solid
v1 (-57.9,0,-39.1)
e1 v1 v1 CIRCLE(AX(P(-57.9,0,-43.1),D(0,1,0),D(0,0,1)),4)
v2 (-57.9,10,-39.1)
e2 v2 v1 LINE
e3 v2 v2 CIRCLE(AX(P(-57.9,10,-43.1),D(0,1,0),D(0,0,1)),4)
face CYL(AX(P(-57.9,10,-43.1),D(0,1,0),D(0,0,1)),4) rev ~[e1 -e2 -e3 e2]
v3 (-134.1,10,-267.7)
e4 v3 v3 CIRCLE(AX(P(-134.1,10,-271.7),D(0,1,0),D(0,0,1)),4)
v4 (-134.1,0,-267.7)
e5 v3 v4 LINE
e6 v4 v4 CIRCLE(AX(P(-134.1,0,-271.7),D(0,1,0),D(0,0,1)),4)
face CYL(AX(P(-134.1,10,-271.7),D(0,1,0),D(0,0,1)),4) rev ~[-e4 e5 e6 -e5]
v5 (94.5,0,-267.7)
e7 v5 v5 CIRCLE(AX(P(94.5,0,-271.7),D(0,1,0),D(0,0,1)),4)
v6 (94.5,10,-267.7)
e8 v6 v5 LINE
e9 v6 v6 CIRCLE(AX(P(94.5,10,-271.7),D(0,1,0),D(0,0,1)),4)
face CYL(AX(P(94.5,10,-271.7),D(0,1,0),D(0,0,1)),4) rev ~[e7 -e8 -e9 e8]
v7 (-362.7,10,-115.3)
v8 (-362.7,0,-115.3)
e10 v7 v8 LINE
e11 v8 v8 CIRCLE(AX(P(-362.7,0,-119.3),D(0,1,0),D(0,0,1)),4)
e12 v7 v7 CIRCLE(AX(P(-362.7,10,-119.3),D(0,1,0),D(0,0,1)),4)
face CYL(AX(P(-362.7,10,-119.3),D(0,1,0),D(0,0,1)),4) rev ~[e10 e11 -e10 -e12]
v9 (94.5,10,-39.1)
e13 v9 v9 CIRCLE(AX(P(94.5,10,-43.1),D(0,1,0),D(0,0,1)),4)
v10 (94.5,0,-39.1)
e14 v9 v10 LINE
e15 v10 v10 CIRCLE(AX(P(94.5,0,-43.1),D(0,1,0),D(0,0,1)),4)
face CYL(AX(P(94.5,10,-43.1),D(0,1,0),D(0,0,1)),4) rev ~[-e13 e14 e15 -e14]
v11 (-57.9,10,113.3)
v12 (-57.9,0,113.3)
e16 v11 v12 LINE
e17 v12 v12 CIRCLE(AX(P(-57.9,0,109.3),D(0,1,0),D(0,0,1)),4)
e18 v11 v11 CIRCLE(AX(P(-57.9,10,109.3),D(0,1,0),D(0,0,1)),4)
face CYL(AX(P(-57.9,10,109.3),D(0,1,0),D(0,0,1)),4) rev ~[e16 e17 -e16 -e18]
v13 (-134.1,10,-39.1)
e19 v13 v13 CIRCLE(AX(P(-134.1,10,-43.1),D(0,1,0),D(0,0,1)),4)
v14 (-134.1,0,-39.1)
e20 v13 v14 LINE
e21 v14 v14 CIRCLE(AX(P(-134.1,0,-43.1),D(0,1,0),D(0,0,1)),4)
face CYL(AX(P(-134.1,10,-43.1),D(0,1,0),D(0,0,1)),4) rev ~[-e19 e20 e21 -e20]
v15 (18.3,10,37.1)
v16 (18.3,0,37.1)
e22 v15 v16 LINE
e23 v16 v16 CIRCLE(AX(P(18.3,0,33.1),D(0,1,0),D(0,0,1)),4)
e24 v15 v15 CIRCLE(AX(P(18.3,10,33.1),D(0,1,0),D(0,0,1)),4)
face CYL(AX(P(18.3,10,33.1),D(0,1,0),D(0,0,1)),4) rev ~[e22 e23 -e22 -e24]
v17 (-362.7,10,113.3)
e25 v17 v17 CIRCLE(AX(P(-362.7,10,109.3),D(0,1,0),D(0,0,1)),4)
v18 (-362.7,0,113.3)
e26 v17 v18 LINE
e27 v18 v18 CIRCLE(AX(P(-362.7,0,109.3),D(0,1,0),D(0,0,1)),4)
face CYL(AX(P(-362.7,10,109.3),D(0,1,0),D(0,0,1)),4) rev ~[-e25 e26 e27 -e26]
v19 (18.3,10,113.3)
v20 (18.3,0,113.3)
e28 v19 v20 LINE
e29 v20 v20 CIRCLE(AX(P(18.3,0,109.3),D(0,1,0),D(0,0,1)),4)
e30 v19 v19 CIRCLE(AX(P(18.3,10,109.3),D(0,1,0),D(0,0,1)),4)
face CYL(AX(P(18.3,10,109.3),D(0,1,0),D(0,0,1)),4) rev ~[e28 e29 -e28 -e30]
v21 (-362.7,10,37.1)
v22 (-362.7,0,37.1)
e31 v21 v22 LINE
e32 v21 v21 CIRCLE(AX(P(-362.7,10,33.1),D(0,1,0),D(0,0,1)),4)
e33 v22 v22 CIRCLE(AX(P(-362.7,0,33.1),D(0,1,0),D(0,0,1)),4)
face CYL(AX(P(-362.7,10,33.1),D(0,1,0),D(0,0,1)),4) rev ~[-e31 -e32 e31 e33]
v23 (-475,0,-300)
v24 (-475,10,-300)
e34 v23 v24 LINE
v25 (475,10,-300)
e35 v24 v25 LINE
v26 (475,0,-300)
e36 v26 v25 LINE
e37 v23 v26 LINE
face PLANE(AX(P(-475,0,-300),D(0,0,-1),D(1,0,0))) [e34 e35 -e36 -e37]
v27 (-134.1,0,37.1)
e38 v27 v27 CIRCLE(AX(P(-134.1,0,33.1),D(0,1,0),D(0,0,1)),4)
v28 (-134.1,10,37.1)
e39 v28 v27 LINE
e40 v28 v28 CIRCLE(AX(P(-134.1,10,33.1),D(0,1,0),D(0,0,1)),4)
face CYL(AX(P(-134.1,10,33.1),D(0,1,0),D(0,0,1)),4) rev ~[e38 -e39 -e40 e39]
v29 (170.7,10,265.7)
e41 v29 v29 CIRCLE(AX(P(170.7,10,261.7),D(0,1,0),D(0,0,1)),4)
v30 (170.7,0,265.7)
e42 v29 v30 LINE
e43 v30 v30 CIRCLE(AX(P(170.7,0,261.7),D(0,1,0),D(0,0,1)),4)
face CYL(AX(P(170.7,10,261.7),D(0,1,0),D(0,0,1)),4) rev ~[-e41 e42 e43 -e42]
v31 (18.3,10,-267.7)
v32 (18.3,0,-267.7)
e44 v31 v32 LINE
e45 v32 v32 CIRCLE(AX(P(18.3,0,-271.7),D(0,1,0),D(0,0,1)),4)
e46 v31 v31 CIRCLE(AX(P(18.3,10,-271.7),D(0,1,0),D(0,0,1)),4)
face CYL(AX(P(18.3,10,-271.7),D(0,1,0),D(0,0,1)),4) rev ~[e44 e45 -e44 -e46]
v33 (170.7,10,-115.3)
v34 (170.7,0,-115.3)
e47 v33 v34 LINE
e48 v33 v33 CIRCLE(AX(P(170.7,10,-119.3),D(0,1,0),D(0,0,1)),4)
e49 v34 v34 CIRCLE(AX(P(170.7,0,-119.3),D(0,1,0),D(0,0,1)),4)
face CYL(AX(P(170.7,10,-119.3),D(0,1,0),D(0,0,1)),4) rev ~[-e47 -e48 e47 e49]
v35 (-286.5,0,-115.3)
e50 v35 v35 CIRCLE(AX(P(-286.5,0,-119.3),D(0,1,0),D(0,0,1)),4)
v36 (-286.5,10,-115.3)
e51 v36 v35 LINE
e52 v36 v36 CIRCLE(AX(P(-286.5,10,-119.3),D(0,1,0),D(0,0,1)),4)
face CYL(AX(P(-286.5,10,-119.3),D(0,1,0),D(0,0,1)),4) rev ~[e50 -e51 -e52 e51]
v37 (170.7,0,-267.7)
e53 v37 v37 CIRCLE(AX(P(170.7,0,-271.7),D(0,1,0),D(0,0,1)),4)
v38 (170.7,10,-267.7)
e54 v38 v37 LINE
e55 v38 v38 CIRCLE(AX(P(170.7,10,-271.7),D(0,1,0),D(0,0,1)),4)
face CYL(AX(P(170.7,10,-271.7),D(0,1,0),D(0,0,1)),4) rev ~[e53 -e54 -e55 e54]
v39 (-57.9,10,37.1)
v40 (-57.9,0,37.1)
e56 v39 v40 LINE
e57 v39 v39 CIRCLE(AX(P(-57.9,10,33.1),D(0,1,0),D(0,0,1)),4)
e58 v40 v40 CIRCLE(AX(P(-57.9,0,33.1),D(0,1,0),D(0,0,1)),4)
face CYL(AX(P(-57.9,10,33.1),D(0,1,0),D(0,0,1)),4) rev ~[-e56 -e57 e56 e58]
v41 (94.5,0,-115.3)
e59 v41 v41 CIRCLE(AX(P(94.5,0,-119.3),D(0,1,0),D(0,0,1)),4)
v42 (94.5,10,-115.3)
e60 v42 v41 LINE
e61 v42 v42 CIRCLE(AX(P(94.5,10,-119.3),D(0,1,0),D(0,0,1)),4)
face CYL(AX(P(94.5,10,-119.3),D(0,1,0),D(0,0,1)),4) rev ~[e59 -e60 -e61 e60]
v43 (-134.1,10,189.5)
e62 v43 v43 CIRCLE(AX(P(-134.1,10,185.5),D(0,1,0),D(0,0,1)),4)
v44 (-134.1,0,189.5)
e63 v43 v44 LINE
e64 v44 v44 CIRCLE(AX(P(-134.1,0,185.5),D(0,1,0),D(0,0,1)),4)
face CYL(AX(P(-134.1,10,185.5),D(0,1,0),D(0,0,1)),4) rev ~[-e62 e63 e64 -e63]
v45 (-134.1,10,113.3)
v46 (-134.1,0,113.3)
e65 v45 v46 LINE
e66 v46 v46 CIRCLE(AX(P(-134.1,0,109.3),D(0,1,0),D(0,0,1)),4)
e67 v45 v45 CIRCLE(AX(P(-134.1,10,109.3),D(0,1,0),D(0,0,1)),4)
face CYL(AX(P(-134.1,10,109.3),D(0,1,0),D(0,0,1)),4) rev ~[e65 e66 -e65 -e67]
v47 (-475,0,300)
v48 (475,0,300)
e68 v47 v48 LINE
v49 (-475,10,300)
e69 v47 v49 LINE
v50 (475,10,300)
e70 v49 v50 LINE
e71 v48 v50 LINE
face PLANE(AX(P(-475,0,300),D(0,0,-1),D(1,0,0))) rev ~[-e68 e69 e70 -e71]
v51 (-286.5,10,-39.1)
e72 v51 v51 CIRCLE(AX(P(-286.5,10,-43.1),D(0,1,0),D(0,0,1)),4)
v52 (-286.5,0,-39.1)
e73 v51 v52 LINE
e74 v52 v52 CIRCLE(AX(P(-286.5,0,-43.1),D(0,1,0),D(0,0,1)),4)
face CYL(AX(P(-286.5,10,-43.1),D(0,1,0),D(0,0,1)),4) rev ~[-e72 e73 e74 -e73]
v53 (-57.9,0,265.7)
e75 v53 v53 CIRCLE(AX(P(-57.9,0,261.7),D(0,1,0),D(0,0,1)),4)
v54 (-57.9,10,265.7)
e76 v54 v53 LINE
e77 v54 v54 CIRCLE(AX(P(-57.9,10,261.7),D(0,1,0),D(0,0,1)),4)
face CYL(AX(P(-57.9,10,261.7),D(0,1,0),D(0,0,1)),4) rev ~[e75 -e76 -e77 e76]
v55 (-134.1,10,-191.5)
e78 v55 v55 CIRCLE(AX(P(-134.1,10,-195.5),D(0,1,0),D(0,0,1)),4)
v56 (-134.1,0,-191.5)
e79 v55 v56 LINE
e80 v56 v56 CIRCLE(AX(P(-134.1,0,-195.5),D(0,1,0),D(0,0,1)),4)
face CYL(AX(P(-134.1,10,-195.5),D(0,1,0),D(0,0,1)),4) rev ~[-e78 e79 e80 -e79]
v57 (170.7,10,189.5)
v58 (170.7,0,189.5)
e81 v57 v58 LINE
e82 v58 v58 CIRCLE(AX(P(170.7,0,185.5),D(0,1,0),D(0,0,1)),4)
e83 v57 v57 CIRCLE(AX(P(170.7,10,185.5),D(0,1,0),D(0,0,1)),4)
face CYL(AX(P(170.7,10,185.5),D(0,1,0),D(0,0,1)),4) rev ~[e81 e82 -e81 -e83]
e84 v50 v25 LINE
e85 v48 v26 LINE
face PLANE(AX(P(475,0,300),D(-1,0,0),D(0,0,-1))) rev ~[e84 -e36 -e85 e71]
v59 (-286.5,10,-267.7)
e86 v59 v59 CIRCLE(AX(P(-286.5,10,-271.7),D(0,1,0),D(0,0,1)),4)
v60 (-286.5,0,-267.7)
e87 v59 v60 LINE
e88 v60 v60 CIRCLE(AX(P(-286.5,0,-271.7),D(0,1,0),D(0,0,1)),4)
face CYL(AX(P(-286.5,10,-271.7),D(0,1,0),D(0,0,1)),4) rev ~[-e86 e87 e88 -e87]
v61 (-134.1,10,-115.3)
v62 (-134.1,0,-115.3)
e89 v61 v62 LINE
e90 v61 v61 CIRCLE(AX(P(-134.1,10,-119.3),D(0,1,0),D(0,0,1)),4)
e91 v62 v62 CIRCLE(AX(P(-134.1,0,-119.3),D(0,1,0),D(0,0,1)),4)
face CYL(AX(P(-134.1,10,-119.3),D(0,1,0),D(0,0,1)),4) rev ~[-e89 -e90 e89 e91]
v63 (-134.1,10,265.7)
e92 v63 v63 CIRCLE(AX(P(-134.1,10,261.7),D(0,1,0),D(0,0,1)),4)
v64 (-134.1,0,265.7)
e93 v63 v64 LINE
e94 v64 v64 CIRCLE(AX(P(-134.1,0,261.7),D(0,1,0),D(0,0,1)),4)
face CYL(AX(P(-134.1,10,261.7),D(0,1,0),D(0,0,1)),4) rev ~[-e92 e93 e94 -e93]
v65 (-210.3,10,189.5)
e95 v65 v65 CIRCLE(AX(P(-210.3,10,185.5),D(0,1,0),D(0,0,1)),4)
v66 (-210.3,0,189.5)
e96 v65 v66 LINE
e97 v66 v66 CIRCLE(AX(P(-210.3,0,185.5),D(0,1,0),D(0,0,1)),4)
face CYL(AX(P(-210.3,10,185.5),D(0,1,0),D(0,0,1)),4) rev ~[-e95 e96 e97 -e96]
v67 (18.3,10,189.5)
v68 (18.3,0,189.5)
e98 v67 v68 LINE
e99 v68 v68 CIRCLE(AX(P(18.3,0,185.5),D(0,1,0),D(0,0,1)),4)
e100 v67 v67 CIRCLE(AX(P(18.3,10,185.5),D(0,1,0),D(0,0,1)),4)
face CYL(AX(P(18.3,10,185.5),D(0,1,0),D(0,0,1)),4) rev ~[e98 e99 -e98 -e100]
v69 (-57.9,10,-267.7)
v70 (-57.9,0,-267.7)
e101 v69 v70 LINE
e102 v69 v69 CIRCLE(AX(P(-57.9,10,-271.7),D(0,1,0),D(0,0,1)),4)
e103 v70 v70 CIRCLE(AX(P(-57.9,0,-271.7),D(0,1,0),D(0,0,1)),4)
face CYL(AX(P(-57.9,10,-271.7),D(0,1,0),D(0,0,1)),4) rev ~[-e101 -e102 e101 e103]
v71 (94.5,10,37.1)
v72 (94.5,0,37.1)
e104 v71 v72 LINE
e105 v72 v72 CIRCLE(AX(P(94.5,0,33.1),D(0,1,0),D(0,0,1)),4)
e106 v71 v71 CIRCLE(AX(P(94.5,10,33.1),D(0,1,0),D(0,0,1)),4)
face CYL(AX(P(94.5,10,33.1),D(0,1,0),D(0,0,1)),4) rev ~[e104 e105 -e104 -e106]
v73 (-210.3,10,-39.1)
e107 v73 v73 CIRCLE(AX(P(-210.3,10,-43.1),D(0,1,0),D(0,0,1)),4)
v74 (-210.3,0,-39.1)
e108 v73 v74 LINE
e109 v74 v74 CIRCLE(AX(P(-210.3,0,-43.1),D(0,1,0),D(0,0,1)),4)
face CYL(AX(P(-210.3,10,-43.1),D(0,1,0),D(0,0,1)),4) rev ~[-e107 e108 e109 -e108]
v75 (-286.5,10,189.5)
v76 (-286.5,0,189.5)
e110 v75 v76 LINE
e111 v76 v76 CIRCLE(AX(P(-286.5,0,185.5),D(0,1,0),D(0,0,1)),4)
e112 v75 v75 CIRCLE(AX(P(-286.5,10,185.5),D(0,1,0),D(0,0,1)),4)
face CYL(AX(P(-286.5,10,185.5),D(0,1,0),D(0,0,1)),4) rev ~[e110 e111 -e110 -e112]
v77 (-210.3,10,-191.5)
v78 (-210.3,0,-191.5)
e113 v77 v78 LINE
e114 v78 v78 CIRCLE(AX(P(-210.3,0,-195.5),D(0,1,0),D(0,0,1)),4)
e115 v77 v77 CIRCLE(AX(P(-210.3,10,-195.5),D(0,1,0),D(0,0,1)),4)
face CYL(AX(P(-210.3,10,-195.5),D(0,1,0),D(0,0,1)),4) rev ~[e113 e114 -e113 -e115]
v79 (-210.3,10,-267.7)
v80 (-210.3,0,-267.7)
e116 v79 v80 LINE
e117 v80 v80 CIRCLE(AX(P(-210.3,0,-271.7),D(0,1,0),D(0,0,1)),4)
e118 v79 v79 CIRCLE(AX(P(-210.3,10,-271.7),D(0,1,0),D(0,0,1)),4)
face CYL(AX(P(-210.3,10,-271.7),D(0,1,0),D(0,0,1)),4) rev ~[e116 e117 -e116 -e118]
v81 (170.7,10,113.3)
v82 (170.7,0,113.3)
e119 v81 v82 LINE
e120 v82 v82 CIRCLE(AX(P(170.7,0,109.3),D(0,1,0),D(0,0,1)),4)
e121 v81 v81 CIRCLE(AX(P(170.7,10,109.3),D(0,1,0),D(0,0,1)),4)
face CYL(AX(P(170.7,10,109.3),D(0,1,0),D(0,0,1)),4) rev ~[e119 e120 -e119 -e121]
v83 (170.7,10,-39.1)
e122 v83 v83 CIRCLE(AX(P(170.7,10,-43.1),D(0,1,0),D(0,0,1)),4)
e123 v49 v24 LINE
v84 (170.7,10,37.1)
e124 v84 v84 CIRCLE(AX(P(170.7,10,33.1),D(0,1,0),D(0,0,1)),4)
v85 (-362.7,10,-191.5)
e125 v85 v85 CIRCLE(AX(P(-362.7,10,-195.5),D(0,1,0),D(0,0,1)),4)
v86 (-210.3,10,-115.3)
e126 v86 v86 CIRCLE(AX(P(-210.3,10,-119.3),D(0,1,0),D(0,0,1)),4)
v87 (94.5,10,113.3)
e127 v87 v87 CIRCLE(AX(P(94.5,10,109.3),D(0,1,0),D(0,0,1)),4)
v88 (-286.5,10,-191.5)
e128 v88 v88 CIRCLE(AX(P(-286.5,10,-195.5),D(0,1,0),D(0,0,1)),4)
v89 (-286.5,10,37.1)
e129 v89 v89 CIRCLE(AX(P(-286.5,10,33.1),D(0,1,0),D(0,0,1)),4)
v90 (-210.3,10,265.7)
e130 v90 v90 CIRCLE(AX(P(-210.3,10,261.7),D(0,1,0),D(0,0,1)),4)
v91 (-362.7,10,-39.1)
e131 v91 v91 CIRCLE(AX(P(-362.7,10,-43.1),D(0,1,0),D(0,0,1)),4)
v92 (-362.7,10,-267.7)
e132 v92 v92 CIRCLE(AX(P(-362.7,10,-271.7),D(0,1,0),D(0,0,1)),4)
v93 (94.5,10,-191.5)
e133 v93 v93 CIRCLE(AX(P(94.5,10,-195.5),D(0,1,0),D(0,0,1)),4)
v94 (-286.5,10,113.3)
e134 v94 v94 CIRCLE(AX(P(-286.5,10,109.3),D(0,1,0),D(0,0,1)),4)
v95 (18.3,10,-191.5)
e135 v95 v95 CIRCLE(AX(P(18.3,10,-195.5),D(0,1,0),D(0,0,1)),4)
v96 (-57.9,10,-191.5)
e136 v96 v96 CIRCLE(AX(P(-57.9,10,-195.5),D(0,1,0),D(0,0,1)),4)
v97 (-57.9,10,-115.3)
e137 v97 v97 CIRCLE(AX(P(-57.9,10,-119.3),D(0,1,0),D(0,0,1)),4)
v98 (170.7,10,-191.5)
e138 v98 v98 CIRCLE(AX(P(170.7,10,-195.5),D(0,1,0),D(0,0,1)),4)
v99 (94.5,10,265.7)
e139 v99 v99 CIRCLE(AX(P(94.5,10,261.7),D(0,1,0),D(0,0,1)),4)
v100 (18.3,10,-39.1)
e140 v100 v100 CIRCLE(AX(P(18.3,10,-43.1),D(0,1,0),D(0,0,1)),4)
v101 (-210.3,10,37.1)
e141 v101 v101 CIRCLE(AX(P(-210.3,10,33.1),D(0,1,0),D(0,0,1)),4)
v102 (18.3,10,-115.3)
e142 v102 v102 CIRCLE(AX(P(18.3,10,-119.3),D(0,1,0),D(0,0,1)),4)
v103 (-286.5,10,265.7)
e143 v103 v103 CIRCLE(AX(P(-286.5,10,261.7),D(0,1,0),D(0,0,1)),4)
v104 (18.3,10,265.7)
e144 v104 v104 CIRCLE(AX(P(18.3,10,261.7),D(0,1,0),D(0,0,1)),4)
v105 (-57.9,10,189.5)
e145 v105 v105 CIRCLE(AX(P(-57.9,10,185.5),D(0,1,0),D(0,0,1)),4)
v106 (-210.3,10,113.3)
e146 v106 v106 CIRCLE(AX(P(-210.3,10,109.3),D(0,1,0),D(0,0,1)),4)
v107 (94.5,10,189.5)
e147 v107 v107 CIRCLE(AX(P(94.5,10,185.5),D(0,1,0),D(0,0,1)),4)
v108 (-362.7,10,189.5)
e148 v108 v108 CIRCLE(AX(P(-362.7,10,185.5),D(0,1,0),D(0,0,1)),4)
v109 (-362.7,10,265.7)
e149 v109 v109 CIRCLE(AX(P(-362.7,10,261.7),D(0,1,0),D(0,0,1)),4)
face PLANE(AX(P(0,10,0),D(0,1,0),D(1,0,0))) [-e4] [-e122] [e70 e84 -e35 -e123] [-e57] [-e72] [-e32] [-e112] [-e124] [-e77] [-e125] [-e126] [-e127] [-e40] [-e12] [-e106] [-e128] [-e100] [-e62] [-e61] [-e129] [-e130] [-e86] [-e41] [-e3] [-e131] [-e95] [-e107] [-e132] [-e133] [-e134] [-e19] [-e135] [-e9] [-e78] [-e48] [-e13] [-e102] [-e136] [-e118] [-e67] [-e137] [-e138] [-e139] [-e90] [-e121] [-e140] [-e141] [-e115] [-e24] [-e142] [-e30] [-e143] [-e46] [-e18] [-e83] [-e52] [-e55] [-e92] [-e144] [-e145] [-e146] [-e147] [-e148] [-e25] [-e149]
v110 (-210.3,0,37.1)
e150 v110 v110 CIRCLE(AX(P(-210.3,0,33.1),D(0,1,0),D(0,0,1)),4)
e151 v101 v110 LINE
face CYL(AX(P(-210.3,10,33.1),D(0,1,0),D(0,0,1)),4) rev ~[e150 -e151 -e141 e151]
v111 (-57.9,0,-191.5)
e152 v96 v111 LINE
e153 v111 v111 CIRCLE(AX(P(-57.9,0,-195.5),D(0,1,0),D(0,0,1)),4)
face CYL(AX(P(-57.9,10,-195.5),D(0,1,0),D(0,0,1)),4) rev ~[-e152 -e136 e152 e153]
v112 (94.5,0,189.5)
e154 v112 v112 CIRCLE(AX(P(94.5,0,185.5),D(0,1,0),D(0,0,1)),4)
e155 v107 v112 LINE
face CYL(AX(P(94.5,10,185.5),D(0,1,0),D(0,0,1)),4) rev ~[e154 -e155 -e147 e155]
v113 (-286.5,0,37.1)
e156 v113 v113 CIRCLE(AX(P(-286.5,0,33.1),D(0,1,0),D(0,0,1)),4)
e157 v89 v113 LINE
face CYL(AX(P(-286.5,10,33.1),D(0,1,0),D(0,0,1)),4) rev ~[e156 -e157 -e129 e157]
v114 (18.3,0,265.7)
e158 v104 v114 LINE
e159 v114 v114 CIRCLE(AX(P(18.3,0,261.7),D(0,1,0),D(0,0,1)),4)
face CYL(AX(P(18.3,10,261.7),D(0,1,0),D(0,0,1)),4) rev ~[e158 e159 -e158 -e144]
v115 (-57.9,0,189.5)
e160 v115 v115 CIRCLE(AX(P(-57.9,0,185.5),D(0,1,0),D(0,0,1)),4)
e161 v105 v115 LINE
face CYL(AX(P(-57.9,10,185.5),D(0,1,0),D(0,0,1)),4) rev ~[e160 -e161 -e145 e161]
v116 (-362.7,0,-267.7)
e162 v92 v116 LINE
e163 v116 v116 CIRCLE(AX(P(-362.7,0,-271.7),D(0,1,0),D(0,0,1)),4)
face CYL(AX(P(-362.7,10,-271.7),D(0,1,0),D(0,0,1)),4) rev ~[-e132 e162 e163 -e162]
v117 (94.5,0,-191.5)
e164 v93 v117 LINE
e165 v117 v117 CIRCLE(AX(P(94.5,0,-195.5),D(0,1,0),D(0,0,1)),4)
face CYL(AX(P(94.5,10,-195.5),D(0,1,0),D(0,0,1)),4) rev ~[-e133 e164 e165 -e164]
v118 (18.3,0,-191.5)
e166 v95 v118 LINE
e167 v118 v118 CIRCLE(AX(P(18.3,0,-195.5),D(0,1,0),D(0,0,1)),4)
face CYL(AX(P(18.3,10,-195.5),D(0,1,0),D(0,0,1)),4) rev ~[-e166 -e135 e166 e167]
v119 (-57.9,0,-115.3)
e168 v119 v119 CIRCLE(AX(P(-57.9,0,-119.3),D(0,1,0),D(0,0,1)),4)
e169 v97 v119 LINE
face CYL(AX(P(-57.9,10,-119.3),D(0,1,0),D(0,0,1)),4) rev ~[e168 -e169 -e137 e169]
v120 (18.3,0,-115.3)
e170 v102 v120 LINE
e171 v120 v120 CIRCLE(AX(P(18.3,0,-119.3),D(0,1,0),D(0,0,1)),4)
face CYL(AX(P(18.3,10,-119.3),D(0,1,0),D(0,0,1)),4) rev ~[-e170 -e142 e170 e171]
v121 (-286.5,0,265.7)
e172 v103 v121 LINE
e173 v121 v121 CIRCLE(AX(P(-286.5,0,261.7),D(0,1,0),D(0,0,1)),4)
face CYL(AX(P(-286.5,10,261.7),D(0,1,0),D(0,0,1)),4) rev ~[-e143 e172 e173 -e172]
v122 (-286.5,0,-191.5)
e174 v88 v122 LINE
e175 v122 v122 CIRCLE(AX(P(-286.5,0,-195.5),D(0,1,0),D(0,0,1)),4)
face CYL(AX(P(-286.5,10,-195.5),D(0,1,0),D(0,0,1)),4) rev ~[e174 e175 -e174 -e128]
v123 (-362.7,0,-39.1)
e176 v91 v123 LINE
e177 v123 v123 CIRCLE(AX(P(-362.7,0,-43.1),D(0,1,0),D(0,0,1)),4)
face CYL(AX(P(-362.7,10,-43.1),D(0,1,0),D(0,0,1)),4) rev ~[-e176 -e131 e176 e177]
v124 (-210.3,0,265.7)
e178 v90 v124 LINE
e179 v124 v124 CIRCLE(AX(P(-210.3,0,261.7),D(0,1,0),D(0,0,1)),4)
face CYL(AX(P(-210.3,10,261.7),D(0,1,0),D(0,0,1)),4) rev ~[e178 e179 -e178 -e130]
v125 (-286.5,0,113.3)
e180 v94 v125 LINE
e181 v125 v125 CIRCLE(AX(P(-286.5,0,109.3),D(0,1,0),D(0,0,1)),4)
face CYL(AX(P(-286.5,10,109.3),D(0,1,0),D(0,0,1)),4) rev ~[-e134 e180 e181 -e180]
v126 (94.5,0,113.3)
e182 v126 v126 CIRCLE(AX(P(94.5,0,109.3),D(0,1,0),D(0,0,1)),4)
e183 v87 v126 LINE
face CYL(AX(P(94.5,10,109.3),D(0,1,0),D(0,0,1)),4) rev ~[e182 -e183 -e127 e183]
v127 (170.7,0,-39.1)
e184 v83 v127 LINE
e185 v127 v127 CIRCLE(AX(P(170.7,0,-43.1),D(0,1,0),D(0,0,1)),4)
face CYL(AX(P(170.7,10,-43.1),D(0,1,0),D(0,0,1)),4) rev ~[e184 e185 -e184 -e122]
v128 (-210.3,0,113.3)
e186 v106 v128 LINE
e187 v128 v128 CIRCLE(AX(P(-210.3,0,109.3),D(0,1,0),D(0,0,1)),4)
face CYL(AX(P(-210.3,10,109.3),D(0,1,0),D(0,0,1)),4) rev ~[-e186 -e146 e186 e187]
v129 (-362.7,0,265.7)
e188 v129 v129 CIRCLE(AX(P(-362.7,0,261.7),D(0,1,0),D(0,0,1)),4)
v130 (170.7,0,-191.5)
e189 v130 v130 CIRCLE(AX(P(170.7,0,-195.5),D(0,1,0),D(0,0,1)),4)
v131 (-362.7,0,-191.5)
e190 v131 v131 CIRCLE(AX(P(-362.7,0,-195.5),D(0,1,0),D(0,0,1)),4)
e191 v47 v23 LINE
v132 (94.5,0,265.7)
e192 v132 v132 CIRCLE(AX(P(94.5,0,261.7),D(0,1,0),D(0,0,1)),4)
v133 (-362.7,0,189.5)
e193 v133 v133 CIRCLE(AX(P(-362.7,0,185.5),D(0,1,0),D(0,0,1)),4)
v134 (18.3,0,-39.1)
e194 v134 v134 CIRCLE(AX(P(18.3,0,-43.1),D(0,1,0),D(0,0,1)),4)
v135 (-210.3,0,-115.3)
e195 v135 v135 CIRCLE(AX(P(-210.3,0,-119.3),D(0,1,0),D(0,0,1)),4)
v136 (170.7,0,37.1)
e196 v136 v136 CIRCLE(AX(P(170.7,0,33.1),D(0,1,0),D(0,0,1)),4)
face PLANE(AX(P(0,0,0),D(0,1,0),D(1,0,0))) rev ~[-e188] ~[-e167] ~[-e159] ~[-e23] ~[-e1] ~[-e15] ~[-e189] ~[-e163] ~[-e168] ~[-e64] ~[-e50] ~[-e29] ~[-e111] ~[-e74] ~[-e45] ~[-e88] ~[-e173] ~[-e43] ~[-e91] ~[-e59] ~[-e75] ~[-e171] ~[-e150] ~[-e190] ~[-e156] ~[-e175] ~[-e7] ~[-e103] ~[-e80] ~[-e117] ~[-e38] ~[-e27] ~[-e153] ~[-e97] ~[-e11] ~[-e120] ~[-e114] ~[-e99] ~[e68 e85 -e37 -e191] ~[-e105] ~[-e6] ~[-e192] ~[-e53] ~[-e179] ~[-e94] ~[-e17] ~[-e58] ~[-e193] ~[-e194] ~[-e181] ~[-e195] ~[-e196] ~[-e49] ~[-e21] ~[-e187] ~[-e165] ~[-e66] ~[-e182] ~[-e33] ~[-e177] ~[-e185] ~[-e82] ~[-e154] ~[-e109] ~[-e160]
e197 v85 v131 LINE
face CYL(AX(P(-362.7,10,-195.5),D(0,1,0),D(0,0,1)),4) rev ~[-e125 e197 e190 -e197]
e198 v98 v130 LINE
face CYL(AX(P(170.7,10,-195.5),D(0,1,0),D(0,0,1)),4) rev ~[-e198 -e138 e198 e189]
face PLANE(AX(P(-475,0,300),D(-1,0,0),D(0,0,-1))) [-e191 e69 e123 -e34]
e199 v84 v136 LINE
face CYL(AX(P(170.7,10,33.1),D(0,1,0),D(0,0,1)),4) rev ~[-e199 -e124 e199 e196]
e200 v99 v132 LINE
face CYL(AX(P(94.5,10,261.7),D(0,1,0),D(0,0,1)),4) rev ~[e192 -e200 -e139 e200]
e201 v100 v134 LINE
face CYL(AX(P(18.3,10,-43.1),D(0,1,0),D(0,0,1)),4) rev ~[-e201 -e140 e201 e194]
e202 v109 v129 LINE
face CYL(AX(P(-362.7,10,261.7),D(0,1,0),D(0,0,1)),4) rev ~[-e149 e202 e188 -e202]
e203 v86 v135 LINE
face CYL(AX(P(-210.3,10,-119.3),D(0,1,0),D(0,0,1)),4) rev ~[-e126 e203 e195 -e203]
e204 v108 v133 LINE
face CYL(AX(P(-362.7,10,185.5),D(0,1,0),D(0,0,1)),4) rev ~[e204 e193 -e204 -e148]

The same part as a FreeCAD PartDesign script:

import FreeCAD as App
import Part
import Sketcher
Q = App.Units.Quantity


def add_polygon(sketch, points):
    """Adds a closed chain of lines whose ends are joined by coincident constraints."""
    first, n = sketch.GeometryCount, len(points)
    for a, b in zip(points, points[1:] + points[:1]):
        sketch.addGeometry(Part.LineSegment(App.Vector(*a, 0), App.Vector(*b, 0)), False)
    for i in range(n):
        sketch.addConstraint(Sketcher.Constraint("Coincident", first + i, 2, first + (i + 1) % n, 1))

doc = App.newDocument("Part")
body = doc.addObject("PartDesign::Body", "Body")

# Sketch on XZ plane
sketch1 = body.newObject("Sketcher::SketchObject", "Sketch")
sketch1.AttachmentSupport = (doc.getObject("XZ_Plane"), [""])
sketch1.MapMode = "FlatFace"
add_polygon(sketch1, [(-475, -300), (-475, 300), (475, 300), (475, -300)])  # lines 0-3
sketch1.addConstraint(Sketcher.Constraint("Vertical", 0))
sketch1.addConstraint(Sketcher.Constraint("Horizontal", 1))
sketch1.addConstraint(Sketcher.Constraint("Vertical", 2))
sketch1.addConstraint(Sketcher.Constraint("Horizontal", 3))
sketch1.addConstraint(Sketcher.Constraint("Symmetric", 0, 2, 2, 2, -1, 1))
sketch1.addConstraint(Sketcher.Constraint("DistanceX", 1, 1, 1, 2, Q("950 mm")))
sketch1.addConstraint(Sketcher.Constraint("DistanceY", 0, 1, 0, 2, Q("600 mm")))
pad1 = body.newObject("PartDesign::Pad", "Pad")
pad1.Profile = sketch1
pad1.Length = 10
pad1.Reversed = True

# Sketch on XZ plane
sketch2 = body.newObject("Sketcher::SketchObject", "Sketch001")
sketch2.AttachmentSupport = (doc.getObject("XZ_Plane"), [""])
sketch2.MapMode = "FlatFace"
sketch2.AttachmentOffset = App.Placement(App.Vector(0, 0, -10), App.Rotation())
sketch2.addGeometry(Part.Circle(App.Vector(-362.7, -271.7, 0), App.Vector(0, 0, 1), 4), False)
sketch2.addGeometry(Part.Circle(App.Vector(-286.5, -271.7, 0), App.Vector(0, 0, 1), 4), False)
sketch2.addGeometry(Part.Circle(App.Vector(-210.3, -271.7, 0), App.Vector(0, 0, 1), 4), False)
sketch2.addGeometry(Part.Circle(App.Vector(-134.1, -271.7, 0), App.Vector(0, 0, 1), 4), False)
sketch2.addGeometry(Part.Circle(App.Vector(-57.9, -271.7, 0), App.Vector(0, 0, 1), 4), False)
sketch2.addGeometry(Part.Circle(App.Vector(18.3, -271.7, 0), App.Vector(0, 0, 1), 4), False)
sketch2.addGeometry(Part.Circle(App.Vector(94.5, -271.7, 0), App.Vector(0, 0, 1), 4), False)
sketch2.addGeometry(Part.Circle(App.Vector(170.7, -271.7, 0), App.Vector(0, 0, 1), 4), False)
sketch2.addGeometry(Part.Circle(App.Vector(-362.7, -195.5, 0), App.Vector(0, 0, 1), 4), False)
sketch2.addGeometry(Part.Circle(App.Vector(-286.5, -195.5, 0), App.Vector(0, 0, 1), 4), False)
sketch2.addGeometry(Part.Circle(App.Vector(-210.3, -195.5, 0), App.Vector(0, 0, 1), 4), False)
sketch2.addGeometry(Part.Circle(App.Vector(-134.1, -195.5, 0), App.Vector(0, 0, 1), 4), False)
sketch2.addGeometry(Part.Circle(App.Vector(18.3, -195.5, 0), App.Vector(0, 0, 1), 4), False)
sketch2.addGeometry(Part.Circle(App.Vector(-57.9, -195.5, 0), App.Vector(0, 0, 1), 4), False)
sketch2.addGeometry(Part.Circle(App.Vector(94.5, -195.5, 0), App.Vector(0, 0, 1), 4), False)
sketch2.addGeometry(Part.Circle(App.Vector(170.7, -195.5, 0), App.Vector(0, 0, 1), 4), False)
sketch2.addGeometry(Part.Circle(App.Vector(-362.7, -119.3, 0), App.Vector(0, 0, 1), 4), False)
sketch2.addGeometry(Part.Circle(App.Vector(-286.5, -119.3, 0), App.Vector(0, 0, 1), 4), False)
sketch2.addGeometry(Part.Circle(App.Vector(-210.3, -119.3, 0), App.Vector(0, 0, 1), 4), False)
sketch2.addGeometry(Part.Circle(App.Vector(-134.1, -119.3, 0), App.Vector(0, 0, 1), 4), False)
sketch2.addGeometry(Part.Circle(App.Vector(18.3, -119.3, 0), App.Vector(0, 0, 1), 4), False)
sketch2.addGeometry(Part.Circle(App.Vector(-57.9, -119.3, 0), App.Vector(0, 0, 1), 4), False)
sketch2.addGeometry(Part.Circle(App.Vector(94.5, -119.3, 0), App.Vector(0, 0, 1), 4), False)
sketch2.addGeometry(Part.Circle(App.Vector(170.7, -119.3, 0), App.Vector(0, 0, 1), 4), False)
sketch2.addGeometry(Part.Circle(App.Vector(-362.7, -43.1, 0), App.Vector(0, 0, 1), 4), False)
sketch2.addGeometry(Part.Circle(App.Vector(-286.5, -43.1, 0), App.Vector(0, 0, 1), 4), False)
sketch2.addGeometry(Part.Circle(App.Vector(-210.3, -43.1, 0), App.Vector(0, 0, 1), 4), False)
sketch2.addGeometry(Part.Circle(App.Vector(-134.1, -43.1, 0), App.Vector(0, 0, 1), 4), False)
sketch2.addGeometry(Part.Circle(App.Vector(18.3, -43.1, 0), App.Vector(0, 0, 1), 4), False)
sketch2.addGeometry(Part.Circle(App.Vector(-57.9, -43.1, 0), App.Vector(0, 0, 1), 4), False)
sketch2.addGeometry(Part.Circle(App.Vector(94.5, -43.1, 0), App.Vector(0, 0, 1), 4), False)
sketch2.addGeometry(Part.Circle(App.Vector(170.7, -43.1, 0), App.Vector(0, 0, 1), 4), False)
sketch2.addGeometry(Part.Circle(App.Vector(-362.7, 33.1, 0), App.Vector(0, 0, 1), 4), False)
sketch2.addGeometry(Part.Circle(App.Vector(-286.5, 33.1, 0), App.Vector(0, 0, 1), 4), False)
sketch2.addGeometry(Part.Circle(App.Vector(-210.3, 33.1, 0), App.Vector(0, 0, 1), 4), False)
sketch2.addGeometry(Part.Circle(App.Vector(-134.1, 33.1, 0), App.Vector(0, 0, 1), 4), False)
sketch2.addGeometry(Part.Circle(App.Vector(18.3, 33.1, 0), App.Vector(0, 0, 1), 4), False)
sketch2.addGeometry(Part.Circle(App.Vector(-57.9, 33.1, 0), App.Vector(0, 0, 1), 4), False)
sketch2.addGeometry(Part.Circle(App.Vector(94.5, 33.1, 0), App.Vector(0, 0, 1), 4), False)
sketch2.addGeometry(Part.Circle(App.Vector(170.7, 33.1, 0), App.Vector(0, 0, 1), 4), False)
sketch2.addGeometry(Part.Circle(App.Vector(-362.7, 109.3, 0), App.Vector(0, 0, 1), 4), False)
sketch2.addGeometry(Part.Circle(App.Vector(-286.5, 109.3, 0), App.Vector(0, 0, 1), 4), False)
sketch2.addGeometry(Part.Circle(App.Vector(-210.3, 109.3, 0), App.Vector(0, 0, 1), 4), False)
sketch2.addGeometry(Part.Circle(App.Vector(-134.1, 109.3, 0), App.Vector(0, 0, 1), 4), False)
sketch2.addGeometry(Part.Circle(App.Vector(18.3, 109.3, 0), App.Vector(0, 0, 1), 4), False)
sketch2.addGeometry(Part.Circle(App.Vector(-57.9, 109.3, 0), App.Vector(0, 0, 1), 4), False)
sketch2.addGeometry(Part.Circle(App.Vector(94.5, 109.3, 0), App.Vector(0, 0, 1), 4), False)
sketch2.addGeometry(Part.Circle(App.Vector(170.7, 109.3, 0), App.Vector(0, 0, 1), 4), False)
sketch2.addGeometry(Part.Circle(App.Vector(-362.7, 185.5, 0), App.Vector(0, 0, 1), 4), False)
sketch2.addGeometry(Part.Circle(App.Vector(-286.5, 185.5, 0), App.Vector(0, 0, 1), 4), False)
sketch2.addGeometry(Part.Circle(App.Vector(-210.3, 185.5, 0), App.Vector(0, 0, 1), 4), False)
sketch2.addGeometry(Part.Circle(App.Vector(-134.1, 185.5, 0), App.Vector(0, 0, 1), 4), False)
sketch2.addGeometry(Part.Circle(App.Vector(18.3, 185.5, 0), App.Vector(0, 0, 1), 4), False)
sketch2.addGeometry(Part.Circle(App.Vector(-57.9, 185.5, 0), App.Vector(0, 0, 1), 4), False)
sketch2.addGeometry(Part.Circle(App.Vector(94.5, 185.5, 0), App.Vector(0, 0, 1), 4), False)
sketch2.addGeometry(Part.Circle(App.Vector(170.7, 185.5, 0), App.Vector(0, 0, 1), 4), False)
sketch2.addGeometry(Part.Circle(App.Vector(-362.7, 261.7, 0), App.Vector(0, 0, 1), 4), False)
sketch2.addGeometry(Part.Circle(App.Vector(-286.5, 261.7, 0), App.Vector(0, 0, 1), 4), False)
sketch2.addGeometry(Part.Circle(App.Vector(-210.3, 261.7, 0), App.Vector(0, 0, 1), 4), False)
sketch2.addGeometry(Part.Circle(App.Vector(-134.1, 261.7, 0), App.Vector(0, 0, 1), 4), False)
sketch2.addGeometry(Part.Circle(App.Vector(18.3, 261.7, 0), App.Vector(0, 0, 1), 4), False)
sketch2.addGeometry(Part.Circle(App.Vector(-57.9, 261.7, 0), App.Vector(0, 0, 1), 4), False)
sketch2.addGeometry(Part.Circle(App.Vector(94.5, 261.7, 0), App.Vector(0, 0, 1), 4), False)
sketch2.addGeometry(Part.Circle(App.Vector(170.7, 261.7, 0), App.Vector(0, 0, 1), 4), False)
sketch2.addConstraint(Sketcher.Constraint("Equal", 0, 1))
sketch2.addConstraint(Sketcher.Constraint("Equal", 1, 2))
sketch2.addConstraint(Sketcher.Constraint("Equal", 2, 3))
sketch2.addConstraint(Sketcher.Constraint("Equal", 3, 4))
sketch2.addConstraint(Sketcher.Constraint("Equal", 4, 5))
sketch2.addConstraint(Sketcher.Constraint("Equal", 5, 6))
sketch2.addConstraint(Sketcher.Constraint("Equal", 6, 7))
sketch2.addConstraint(Sketcher.Constraint("Equal", 7, 8))
sketch2.addConstraint(Sketcher.Constraint("Equal", 8, 9))
sketch2.addConstraint(Sketcher.Constraint("Equal", 9, 10))
sketch2.addConstraint(Sketcher.Constraint("Equal", 10, 11))
sketch2.addConstraint(Sketcher.Constraint("Equal", 11, 12))
sketch2.addConstraint(Sketcher.Constraint("Equal", 12, 13))
sketch2.addConstraint(Sketcher.Constraint("Equal", 13, 14))
sketch2.addConstraint(Sketcher.Constraint("Equal", 14, 15))
sketch2.addConstraint(Sketcher.Constraint("Equal", 15, 16))
sketch2.addConstraint(Sketcher.Constraint("Equal", 16, 17))
sketch2.addConstraint(Sketcher.Constraint("Equal", 17, 18))
sketch2.addConstraint(Sketcher.Constraint("Equal", 18, 19))
sketch2.addConstraint(Sketcher.Constraint("Equal", 19, 20))
sketch2.addConstraint(Sketcher.Constraint("Equal", 20, 21))
sketch2.addConstraint(Sketcher.Constraint("Equal", 21, 22))
sketch2.addConstraint(Sketcher.Constraint("Equal", 22, 23))
sketch2.addConstraint(Sketcher.Constraint("Equal", 23, 24))
sketch2.addConstraint(Sketcher.Constraint("Equal", 24, 25))
sketch2.addConstraint(Sketcher.Constraint("Equal", 25, 26))
sketch2.addConstraint(Sketcher.Constraint("Equal", 26, 27))
sketch2.addConstraint(Sketcher.Constraint("Equal", 27, 28))
sketch2.addConstraint(Sketcher.Constraint("Equal", 28, 29))
sketch2.addConstraint(Sketcher.Constraint("Equal", 29, 30))
sketch2.addConstraint(Sketcher.Constraint("Equal", 30, 31))
sketch2.addConstraint(Sketcher.Constraint("Equal", 31, 32))
sketch2.addConstraint(Sketcher.Constraint("Equal", 32, 33))
sketch2.addConstraint(Sketcher.Constraint("Equal", 33, 34))
sketch2.addConstraint(Sketcher.Constraint("Equal", 34, 35))
sketch2.addConstraint(Sketcher.Constraint("Equal", 35, 36))
sketch2.addConstraint(Sketcher.Constraint("Equal", 36, 37))
sketch2.addConstraint(Sketcher.Constraint("Equal", 37, 38))
sketch2.addConstraint(Sketcher.Constraint("Equal", 38, 39))
sketch2.addConstraint(Sketcher.Constraint("Equal", 39, 40))
sketch2.addConstraint(Sketcher.Constraint("Equal", 40, 41))
sketch2.addConstraint(Sketcher.Constraint("Equal", 41, 42))
sketch2.addConstraint(Sketcher.Constraint("Equal", 42, 43))
sketch2.addConstraint(Sketcher.Constraint("Equal", 43, 44))
sketch2.addConstraint(Sketcher.Constraint("Equal", 44, 45))
sketch2.addConstraint(Sketcher.Constraint("Equal", 45, 46))
sketch2.addConstraint(Sketcher.Constraint("Equal", 46, 47))
sketch2.addConstraint(Sketcher.Constraint("Equal", 47, 48))
sketch2.addConstraint(Sketcher.Constraint("Equal", 48, 49))
sketch2.addConstraint(Sketcher.Constraint("Equal", 49, 50))
sketch2.addConstraint(Sketcher.Constraint("Equal", 50, 51))
sketch2.addConstraint(Sketcher.Constraint("Equal", 51, 52))
sketch2.addConstraint(Sketcher.Constraint("Equal", 52, 53))
sketch2.addConstraint(Sketcher.Constraint("Equal", 53, 54))
sketch2.addConstraint(Sketcher.Constraint("Equal", 54, 55))
sketch2.addConstraint(Sketcher.Constraint("Equal", 55, 56))
sketch2.addConstraint(Sketcher.Constraint("Equal", 56, 57))
sketch2.addConstraint(Sketcher.Constraint("Equal", 57, 58))
sketch2.addConstraint(Sketcher.Constraint("Equal", 58, 59))
sketch2.addConstraint(Sketcher.Constraint("Equal", 59, 60))
sketch2.addConstraint(Sketcher.Constraint("Equal", 60, 61))
sketch2.addConstraint(Sketcher.Constraint("Equal", 61, 62))
sketch2.addConstraint(Sketcher.Constraint("Equal", 62, 63))
sketch2.addConstraint(Sketcher.Constraint("Horizontal", 0, 3, 1, 3))
sketch2.addConstraint(Sketcher.Constraint("Horizontal", 1, 3, 2, 3))
sketch2.addConstraint(Sketcher.Constraint("Horizontal", 2, 3, 3, 3))
sketch2.addConstraint(Sketcher.Constraint("Horizontal", 3, 3, 4, 3))
sketch2.addConstraint(Sketcher.Constraint("Horizontal", 4, 3, 5, 3))
sketch2.addConstraint(Sketcher.Constraint("Horizontal", 5, 3, 6, 3))
sketch2.addConstraint(Sketcher.Constraint("Horizontal", 6, 3, 7, 3))
sketch2.addConstraint(Sketcher.Constraint("Horizontal", 8, 3, 9, 3))
sketch2.addConstraint(Sketcher.Constraint("Horizontal", 9, 3, 10, 3))
sketch2.addConstraint(Sketcher.Constraint("Horizontal", 10, 3, 11, 3))
sketch2.addConstraint(Sketcher.Constraint("Horizontal", 11, 3, 12, 3))
sketch2.addConstraint(Sketcher.Constraint("Horizontal", 12, 3, 13, 3))
sketch2.addConstraint(Sketcher.Constraint("Horizontal", 13, 3, 14, 3))
sketch2.addConstraint(Sketcher.Constraint("Horizontal", 14, 3, 15, 3))
sketch2.addConstraint(Sketcher.Constraint("Horizontal", 16, 3, 17, 3))
sketch2.addConstraint(Sketcher.Constraint("Horizontal", 17, 3, 18, 3))
sketch2.addConstraint(Sketcher.Constraint("Horizontal", 18, 3, 19, 3))
sketch2.addConstraint(Sketcher.Constraint("Horizontal", 19, 3, 20, 3))
sketch2.addConstraint(Sketcher.Constraint("Horizontal", 20, 3, 21, 3))
sketch2.addConstraint(Sketcher.Constraint("Horizontal", 21, 3, 22, 3))
sketch2.addConstraint(Sketcher.Constraint("Horizontal", 22, 3, 23, 3))
sketch2.addConstraint(Sketcher.Constraint("Horizontal", 24, 3, 25, 3))
sketch2.addConstraint(Sketcher.Constraint("Horizontal", 25, 3, 26, 3))
sketch2.addConstraint(Sketcher.Constraint("Horizontal", 26, 3, 27, 3))
sketch2.addConstraint(Sketcher.Constraint("Horizontal", 27, 3, 28, 3))
sketch2.addConstraint(Sketcher.Constraint("Horizontal", 28, 3, 29, 3))
sketch2.addConstraint(Sketcher.Constraint("Horizontal", 29, 3, 30, 3))
sketch2.addConstraint(Sketcher.Constraint("Horizontal", 30, 3, 31, 3))
sketch2.addConstraint(Sketcher.Constraint("Horizontal", 32, 3, 33, 3))
sketch2.addConstraint(Sketcher.Constraint("Horizontal", 33, 3, 34, 3))
sketch2.addConstraint(Sketcher.Constraint("Horizontal", 34, 3, 35, 3))
sketch2.addConstraint(Sketcher.Constraint("Horizontal", 35, 3, 36, 3))
sketch2.addConstraint(Sketcher.Constraint("Horizontal", 36, 3, 37, 3))
sketch2.addConstraint(Sketcher.Constraint("Horizontal", 37, 3, 38, 3))
sketch2.addConstraint(Sketcher.Constraint("Horizontal", 38, 3, 39, 3))
sketch2.addConstraint(Sketcher.Constraint("Horizontal", 40, 3, 41, 3))
sketch2.addConstraint(Sketcher.Constraint("Horizontal", 41, 3, 42, 3))
sketch2.addConstraint(Sketcher.Constraint("Horizontal", 42, 3, 43, 3))
sketch2.addConstraint(Sketcher.Constraint("Horizontal", 43, 3, 44, 3))
sketch2.addConstraint(Sketcher.Constraint("Horizontal", 44, 3, 45, 3))
sketch2.addConstraint(Sketcher.Constraint("Horizontal", 45, 3, 46, 3))
sketch2.addConstraint(Sketcher.Constraint("Horizontal", 46, 3, 47, 3))
sketch2.addConstraint(Sketcher.Constraint("Horizontal", 48, 3, 49, 3))
sketch2.addConstraint(Sketcher.Constraint("Horizontal", 49, 3, 50, 3))
sketch2.addConstraint(Sketcher.Constraint("Horizontal", 50, 3, 51, 3))
sketch2.addConstraint(Sketcher.Constraint("Horizontal", 51, 3, 52, 3))
sketch2.addConstraint(Sketcher.Constraint("Horizontal", 52, 3, 53, 3))
sketch2.addConstraint(Sketcher.Constraint("Horizontal", 53, 3, 54, 3))
sketch2.addConstraint(Sketcher.Constraint("Horizontal", 54, 3, 55, 3))
sketch2.addConstraint(Sketcher.Constraint("Horizontal", 56, 3, 57, 3))
sketch2.addConstraint(Sketcher.Constraint("Horizontal", 57, 3, 58, 3))
sketch2.addConstraint(Sketcher.Constraint("Horizontal", 58, 3, 59, 3))
sketch2.addConstraint(Sketcher.Constraint("Horizontal", 59, 3, 60, 3))
sketch2.addConstraint(Sketcher.Constraint("Horizontal", 60, 3, 61, 3))
sketch2.addConstraint(Sketcher.Constraint("Horizontal", 61, 3, 62, 3))
sketch2.addConstraint(Sketcher.Constraint("Horizontal", 62, 3, 63, 3))
sketch2.addConstraint(Sketcher.Constraint("Vertical", 0, 3, 8, 3))
sketch2.addConstraint(Sketcher.Constraint("Vertical", 1, 3, 9, 3))
sketch2.addConstraint(Sketcher.Constraint("Vertical", 2, 3, 10, 3))
sketch2.addConstraint(Sketcher.Constraint("Vertical", 3, 3, 11, 3))
sketch2.addConstraint(Sketcher.Constraint("Vertical", 5, 3, 12, 3))
sketch2.addConstraint(Sketcher.Constraint("Vertical", 4, 3, 13, 3))
sketch2.addConstraint(Sketcher.Constraint("Vertical", 6, 3, 14, 3))
sketch2.addConstraint(Sketcher.Constraint("Vertical", 7, 3, 15, 3))
sketch2.addConstraint(Sketcher.Constraint("Vertical", 8, 3, 16, 3))
sketch2.addConstraint(Sketcher.Constraint("Vertical", 9, 3, 17, 3))
sketch2.addConstraint(Sketcher.Constraint("Vertical", 10, 3, 18, 3))
sketch2.addConstraint(Sketcher.Constraint("Vertical", 11, 3, 19, 3))
sketch2.addConstraint(Sketcher.Constraint("Vertical", 12, 3, 20, 3))
sketch2.addConstraint(Sketcher.Constraint("Vertical", 13, 3, 21, 3))
sketch2.addConstraint(Sketcher.Constraint("Vertical", 14, 3, 22, 3))
sketch2.addConstraint(Sketcher.Constraint("Vertical", 15, 3, 23, 3))
sketch2.addConstraint(Sketcher.Constraint("Vertical", 16, 3, 24, 3))
sketch2.addConstraint(Sketcher.Constraint("Vertical", 17, 3, 25, 3))
sketch2.addConstraint(Sketcher.Constraint("Vertical", 18, 3, 26, 3))
sketch2.addConstraint(Sketcher.Constraint("Vertical", 19, 3, 27, 3))
sketch2.addConstraint(Sketcher.Constraint("Vertical", 20, 3, 28, 3))
sketch2.addConstraint(Sketcher.Constraint("Vertical", 21, 3, 29, 3))
sketch2.addConstraint(Sketcher.Constraint("Vertical", 22, 3, 30, 3))
sketch2.addConstraint(Sketcher.Constraint("Vertical", 23, 3, 31, 3))
sketch2.addConstraint(Sketcher.Constraint("Vertical", 24, 3, 32, 3))
sketch2.addConstraint(Sketcher.Constraint("Vertical", 25, 3, 33, 3))
sketch2.addConstraint(Sketcher.Constraint("Vertical", 26, 3, 34, 3))
sketch2.addConstraint(Sketcher.Constraint("Vertical", 27, 3, 35, 3))
sketch2.addConstraint(Sketcher.Constraint("Vertical", 28, 3, 36, 3))
sketch2.addConstraint(Sketcher.Constraint("Vertical", 29, 3, 37, 3))
sketch2.addConstraint(Sketcher.Constraint("Vertical", 30, 3, 38, 3))
sketch2.addConstraint(Sketcher.Constraint("Vertical", 31, 3, 39, 3))
sketch2.addConstraint(Sketcher.Constraint("Vertical", 32, 3, 40, 3))
sketch2.addConstraint(Sketcher.Constraint("Vertical", 33, 3, 41, 3))
sketch2.addConstraint(Sketcher.Constraint("Vertical", 34, 3, 42, 3))
sketch2.addConstraint(Sketcher.Constraint("Vertical", 35, 3, 43, 3))
sketch2.addConstraint(Sketcher.Constraint("Vertical", 36, 3, 44, 3))
sketch2.addConstraint(Sketcher.Constraint("Vertical", 37, 3, 45, 3))
sketch2.addConstraint(Sketcher.Constraint("Vertical", 38, 3, 46, 3))
sketch2.addConstraint(Sketcher.Constraint("Vertical", 39, 3, 47, 3))
sketch2.addConstraint(Sketcher.Constraint("Vertical", 40, 3, 48, 3))
sketch2.addConstraint(Sketcher.Constraint("Vertical", 41, 3, 49, 3))
sketch2.addConstraint(Sketcher.Constraint("Vertical", 42, 3, 50, 3))
sketch2.addConstraint(Sketcher.Constraint("Vertical", 43, 3, 51, 3))
sketch2.addConstraint(Sketcher.Constraint("Vertical", 44, 3, 52, 3))
sketch2.addConstraint(Sketcher.Constraint("Vertical", 45, 3, 53, 3))
sketch2.addConstraint(Sketcher.Constraint("Vertical", 46, 3, 54, 3))
sketch2.addConstraint(Sketcher.Constraint("Vertical", 47, 3, 55, 3))
sketch2.addConstraint(Sketcher.Constraint("Vertical", 48, 3, 56, 3))
sketch2.addConstraint(Sketcher.Constraint("Vertical", 49, 3, 57, 3))
sketch2.addConstraint(Sketcher.Constraint("Vertical", 50, 3, 58, 3))
sketch2.addConstraint(Sketcher.Constraint("Vertical", 51, 3, 59, 3))
sketch2.addConstraint(Sketcher.Constraint("Vertical", 52, 3, 60, 3))
sketch2.addConstraint(Sketcher.Constraint("Vertical", 53, 3, 61, 3))
sketch2.addConstraint(Sketcher.Constraint("Vertical", 54, 3, 62, 3))
sketch2.addConstraint(Sketcher.Constraint("Vertical", 55, 3, 63, 3))
sketch2.addConstraint(Sketcher.Constraint("Diameter", 0, Q("8 mm")))
sketch2.addConstraint(Sketcher.Constraint("DistanceX", 0, 3, -1, 1, Q("362.7 mm")))
sketch2.addConstraint(Sketcher.Constraint("DistanceY", 0, 3, -1, 1, Q("271.7 mm")))
sketch2.addConstraint(Sketcher.Constraint("DistanceX", 1, 3, -1, 1, Q("286.5 mm")))
sketch2.addConstraint(Sketcher.Constraint("DistanceX", 2, 3, -1, 1, Q("210.3 mm")))
sketch2.addConstraint(Sketcher.Constraint("DistanceX", 3, 3, -1, 1, Q("134.1 mm")))
sketch2.addConstraint(Sketcher.Constraint("DistanceX", 4, 3, -1, 1, Q("57.9 mm")))
sketch2.addConstraint(Sketcher.Constraint("DistanceX", -1, 1, 5, 3, Q("18.3 mm")))
sketch2.addConstraint(Sketcher.Constraint("DistanceX", -1, 1, 6, 3, Q("94.5 mm")))
sketch2.addConstraint(Sketcher.Constraint("DistanceX", -1, 1, 7, 3, Q("170.7 mm")))
sketch2.addConstraint(Sketcher.Constraint("DistanceY", 8, 3, -1, 1, Q("195.5 mm")))
sketch2.addConstraint(Sketcher.Constraint("DistanceY", 16, 3, -1, 1, Q("119.3 mm")))
sketch2.addConstraint(Sketcher.Constraint("DistanceY", 24, 3, -1, 1, Q("43.1 mm")))
sketch2.addConstraint(Sketcher.Constraint("DistanceY", -1, 1, 32, 3, Q("33.1 mm")))
sketch2.addConstraint(Sketcher.Constraint("DistanceY", -1, 1, 40, 3, Q("109.3 mm")))
sketch2.addConstraint(Sketcher.Constraint("DistanceY", -1, 1, 48, 3, Q("185.5 mm")))
sketch2.addConstraint(Sketcher.Constraint("DistanceY", -1, 1, 56, 3, Q("261.7 mm")))
pocket1 = body.newObject("PartDesign::Pocket", "Pocket")
pocket1.Profile = sketch2
pocket1.Length = 10
pocket1.Reversed = True

doc.recompute()
